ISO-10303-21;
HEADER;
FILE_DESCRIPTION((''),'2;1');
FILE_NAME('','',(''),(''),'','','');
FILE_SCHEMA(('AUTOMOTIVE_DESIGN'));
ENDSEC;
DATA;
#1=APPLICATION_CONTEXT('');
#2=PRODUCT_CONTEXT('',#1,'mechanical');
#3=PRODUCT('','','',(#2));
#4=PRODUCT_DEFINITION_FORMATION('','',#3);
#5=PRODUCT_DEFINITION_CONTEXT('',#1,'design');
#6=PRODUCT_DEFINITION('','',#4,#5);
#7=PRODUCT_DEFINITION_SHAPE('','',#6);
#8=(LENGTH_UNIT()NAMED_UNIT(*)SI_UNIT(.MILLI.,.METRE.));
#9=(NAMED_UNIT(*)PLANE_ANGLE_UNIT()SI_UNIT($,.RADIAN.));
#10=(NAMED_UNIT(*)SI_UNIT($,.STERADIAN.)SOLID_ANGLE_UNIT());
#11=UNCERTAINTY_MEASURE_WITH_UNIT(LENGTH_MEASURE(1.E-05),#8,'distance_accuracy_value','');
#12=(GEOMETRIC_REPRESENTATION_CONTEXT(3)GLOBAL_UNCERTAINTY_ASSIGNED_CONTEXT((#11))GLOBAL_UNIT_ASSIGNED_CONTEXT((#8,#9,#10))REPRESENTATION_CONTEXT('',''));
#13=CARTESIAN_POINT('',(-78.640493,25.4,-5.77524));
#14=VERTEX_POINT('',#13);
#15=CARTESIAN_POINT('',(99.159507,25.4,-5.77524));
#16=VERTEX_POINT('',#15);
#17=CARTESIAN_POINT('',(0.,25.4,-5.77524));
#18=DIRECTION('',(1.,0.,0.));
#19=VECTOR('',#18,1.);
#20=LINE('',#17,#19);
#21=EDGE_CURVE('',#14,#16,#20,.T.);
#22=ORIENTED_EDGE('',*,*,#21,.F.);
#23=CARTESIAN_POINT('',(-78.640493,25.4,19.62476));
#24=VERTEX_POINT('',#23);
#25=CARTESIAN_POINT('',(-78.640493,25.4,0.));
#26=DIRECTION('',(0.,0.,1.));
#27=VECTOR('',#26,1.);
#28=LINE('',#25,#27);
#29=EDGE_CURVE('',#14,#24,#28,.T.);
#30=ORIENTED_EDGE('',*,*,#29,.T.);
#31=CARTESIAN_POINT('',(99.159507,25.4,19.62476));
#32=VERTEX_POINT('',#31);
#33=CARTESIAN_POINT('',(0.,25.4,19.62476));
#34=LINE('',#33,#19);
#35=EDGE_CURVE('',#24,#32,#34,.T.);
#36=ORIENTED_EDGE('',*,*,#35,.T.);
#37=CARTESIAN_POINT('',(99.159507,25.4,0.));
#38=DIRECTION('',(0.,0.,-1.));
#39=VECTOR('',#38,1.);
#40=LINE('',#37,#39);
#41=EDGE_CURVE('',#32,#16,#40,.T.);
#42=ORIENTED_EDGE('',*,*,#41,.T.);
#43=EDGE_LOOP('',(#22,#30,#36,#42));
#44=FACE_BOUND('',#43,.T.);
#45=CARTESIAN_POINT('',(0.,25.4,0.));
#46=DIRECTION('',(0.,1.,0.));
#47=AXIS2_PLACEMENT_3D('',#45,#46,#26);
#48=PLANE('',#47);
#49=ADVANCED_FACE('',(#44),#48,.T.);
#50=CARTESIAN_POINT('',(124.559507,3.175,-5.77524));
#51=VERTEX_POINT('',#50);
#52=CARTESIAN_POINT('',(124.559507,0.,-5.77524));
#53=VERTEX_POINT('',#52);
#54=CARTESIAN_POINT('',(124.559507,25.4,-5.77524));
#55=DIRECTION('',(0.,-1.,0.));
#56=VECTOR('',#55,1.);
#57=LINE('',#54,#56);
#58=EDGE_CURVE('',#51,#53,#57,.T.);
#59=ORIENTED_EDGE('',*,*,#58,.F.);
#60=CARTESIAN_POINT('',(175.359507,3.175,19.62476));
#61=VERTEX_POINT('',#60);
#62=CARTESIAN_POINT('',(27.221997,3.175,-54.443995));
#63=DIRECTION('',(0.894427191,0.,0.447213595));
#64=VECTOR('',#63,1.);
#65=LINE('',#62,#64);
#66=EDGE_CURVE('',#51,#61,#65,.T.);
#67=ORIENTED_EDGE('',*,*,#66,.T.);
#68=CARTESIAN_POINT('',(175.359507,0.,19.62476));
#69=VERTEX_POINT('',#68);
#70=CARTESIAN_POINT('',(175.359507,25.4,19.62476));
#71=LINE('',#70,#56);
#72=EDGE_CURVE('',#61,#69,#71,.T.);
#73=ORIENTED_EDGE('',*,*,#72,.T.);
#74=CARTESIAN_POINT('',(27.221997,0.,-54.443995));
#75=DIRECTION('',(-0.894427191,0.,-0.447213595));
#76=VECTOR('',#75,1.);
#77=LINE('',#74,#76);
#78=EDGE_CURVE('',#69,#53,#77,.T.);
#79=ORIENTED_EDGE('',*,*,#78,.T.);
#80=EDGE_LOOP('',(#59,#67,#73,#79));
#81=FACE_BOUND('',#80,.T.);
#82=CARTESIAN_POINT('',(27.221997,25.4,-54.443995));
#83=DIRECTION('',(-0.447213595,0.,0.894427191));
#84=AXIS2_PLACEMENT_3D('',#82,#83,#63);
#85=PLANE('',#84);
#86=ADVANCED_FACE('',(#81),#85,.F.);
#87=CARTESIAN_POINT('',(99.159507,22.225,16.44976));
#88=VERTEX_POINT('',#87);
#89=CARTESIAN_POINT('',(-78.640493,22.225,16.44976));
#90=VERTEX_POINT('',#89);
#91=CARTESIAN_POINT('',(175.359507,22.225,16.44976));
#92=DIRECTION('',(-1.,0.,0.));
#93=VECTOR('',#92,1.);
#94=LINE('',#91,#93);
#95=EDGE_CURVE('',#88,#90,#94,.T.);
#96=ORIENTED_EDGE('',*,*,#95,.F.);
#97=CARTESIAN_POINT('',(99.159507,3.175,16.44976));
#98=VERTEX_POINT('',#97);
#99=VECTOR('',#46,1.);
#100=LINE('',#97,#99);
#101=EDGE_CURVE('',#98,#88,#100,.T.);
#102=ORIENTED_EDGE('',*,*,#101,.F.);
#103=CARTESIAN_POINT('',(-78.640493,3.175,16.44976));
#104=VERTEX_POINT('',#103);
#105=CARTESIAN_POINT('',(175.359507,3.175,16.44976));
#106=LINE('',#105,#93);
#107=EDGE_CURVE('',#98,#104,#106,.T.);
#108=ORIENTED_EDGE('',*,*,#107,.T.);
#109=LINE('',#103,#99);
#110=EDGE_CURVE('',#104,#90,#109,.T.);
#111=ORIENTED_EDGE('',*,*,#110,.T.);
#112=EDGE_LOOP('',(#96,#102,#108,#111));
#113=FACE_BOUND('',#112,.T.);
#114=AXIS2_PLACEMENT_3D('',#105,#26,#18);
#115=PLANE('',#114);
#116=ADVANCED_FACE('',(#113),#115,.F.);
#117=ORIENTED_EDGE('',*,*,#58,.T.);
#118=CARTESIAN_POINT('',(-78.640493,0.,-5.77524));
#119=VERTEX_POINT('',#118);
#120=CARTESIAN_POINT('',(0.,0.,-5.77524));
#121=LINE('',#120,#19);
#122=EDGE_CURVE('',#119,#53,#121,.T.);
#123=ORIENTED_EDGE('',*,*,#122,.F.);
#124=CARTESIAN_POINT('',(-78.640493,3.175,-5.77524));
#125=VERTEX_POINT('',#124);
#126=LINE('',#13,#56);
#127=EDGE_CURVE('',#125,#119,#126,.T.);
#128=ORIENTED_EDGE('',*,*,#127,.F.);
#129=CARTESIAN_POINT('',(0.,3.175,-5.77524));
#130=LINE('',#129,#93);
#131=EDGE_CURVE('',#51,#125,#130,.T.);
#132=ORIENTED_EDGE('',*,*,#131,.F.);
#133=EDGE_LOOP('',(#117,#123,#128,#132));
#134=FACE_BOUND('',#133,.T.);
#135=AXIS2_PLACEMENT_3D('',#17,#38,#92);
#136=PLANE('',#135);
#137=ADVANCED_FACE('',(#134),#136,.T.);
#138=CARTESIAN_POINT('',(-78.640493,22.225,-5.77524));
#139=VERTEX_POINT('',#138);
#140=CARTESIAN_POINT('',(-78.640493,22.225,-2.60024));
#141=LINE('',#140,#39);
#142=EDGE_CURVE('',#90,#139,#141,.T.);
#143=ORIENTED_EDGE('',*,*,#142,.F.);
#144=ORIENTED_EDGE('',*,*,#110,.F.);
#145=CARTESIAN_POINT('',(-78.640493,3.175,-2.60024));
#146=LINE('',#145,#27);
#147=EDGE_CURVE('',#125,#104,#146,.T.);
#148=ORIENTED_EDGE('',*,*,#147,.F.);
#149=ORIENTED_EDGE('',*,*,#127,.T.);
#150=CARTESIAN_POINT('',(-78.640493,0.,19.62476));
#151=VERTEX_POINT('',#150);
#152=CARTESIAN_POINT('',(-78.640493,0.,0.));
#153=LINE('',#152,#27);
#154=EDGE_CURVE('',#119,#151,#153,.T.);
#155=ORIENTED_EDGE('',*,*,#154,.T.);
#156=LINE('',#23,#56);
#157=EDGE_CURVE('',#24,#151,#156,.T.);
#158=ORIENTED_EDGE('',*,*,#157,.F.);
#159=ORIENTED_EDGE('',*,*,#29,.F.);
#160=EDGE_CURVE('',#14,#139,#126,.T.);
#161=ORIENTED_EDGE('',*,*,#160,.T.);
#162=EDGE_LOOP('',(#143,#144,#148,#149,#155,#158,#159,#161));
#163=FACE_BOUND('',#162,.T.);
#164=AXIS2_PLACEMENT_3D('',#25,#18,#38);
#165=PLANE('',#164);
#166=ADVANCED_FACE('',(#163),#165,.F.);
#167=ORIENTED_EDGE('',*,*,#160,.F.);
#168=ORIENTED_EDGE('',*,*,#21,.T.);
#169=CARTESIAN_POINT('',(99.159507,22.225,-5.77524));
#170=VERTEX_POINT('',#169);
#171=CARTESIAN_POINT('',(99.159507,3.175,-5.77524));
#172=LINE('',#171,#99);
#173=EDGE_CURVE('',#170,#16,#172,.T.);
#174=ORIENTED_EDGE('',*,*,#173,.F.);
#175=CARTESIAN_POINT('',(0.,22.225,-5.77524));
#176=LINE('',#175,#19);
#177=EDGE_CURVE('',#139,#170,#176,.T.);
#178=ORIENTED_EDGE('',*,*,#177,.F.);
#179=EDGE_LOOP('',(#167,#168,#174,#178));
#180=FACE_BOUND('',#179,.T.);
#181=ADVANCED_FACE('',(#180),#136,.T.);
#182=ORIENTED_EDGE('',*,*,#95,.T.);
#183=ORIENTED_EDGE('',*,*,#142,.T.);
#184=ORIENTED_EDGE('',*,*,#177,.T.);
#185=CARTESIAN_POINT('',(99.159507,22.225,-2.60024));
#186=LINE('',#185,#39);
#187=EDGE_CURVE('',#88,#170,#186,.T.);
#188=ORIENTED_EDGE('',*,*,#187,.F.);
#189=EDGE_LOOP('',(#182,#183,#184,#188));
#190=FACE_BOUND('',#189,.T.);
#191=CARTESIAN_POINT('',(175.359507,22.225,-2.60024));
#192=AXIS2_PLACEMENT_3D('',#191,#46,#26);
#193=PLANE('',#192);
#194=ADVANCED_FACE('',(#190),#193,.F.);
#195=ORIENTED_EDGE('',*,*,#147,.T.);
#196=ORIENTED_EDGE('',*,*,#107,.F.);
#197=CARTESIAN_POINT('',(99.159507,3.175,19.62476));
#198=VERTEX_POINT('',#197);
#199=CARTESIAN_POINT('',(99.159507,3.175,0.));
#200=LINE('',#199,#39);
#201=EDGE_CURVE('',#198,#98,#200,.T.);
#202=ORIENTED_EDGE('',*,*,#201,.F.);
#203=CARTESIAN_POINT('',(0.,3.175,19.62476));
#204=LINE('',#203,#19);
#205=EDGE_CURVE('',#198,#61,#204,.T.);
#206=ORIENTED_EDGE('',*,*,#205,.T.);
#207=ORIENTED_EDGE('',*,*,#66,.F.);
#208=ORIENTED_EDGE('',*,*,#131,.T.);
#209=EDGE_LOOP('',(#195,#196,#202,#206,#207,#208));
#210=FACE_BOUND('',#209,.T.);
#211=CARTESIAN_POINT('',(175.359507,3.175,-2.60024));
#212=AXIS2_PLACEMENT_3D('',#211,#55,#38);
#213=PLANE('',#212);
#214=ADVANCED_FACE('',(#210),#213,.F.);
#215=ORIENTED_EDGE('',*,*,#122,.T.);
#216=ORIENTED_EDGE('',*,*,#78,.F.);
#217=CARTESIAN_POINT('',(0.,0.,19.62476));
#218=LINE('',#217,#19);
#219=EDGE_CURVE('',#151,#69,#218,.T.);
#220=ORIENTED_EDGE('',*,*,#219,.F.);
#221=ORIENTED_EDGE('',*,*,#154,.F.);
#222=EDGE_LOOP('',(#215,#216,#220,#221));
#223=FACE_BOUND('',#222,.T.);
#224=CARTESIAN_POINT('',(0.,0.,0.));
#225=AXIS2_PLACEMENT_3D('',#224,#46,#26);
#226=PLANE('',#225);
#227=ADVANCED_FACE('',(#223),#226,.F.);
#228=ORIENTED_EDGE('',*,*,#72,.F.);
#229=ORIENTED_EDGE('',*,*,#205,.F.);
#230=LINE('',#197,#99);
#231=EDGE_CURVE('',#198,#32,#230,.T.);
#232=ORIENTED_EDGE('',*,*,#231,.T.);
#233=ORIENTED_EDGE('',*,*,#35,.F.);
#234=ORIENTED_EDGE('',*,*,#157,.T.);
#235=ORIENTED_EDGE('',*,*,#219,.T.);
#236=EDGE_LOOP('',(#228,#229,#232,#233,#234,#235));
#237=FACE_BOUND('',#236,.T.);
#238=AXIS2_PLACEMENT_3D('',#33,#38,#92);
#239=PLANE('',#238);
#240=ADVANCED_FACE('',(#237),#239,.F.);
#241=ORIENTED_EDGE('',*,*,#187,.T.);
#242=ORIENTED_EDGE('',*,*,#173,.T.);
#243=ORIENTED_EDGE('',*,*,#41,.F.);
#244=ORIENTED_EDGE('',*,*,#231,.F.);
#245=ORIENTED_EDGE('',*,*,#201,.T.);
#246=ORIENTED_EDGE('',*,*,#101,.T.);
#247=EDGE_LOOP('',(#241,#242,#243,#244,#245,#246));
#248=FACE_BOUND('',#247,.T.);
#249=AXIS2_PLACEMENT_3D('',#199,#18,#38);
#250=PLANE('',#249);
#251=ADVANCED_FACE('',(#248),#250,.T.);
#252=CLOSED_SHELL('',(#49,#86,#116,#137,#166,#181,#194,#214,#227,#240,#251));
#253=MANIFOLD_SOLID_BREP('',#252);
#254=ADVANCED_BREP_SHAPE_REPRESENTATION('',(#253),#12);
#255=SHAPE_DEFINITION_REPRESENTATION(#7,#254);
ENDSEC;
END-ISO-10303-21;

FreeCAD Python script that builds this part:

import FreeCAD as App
import Part
import Sketcher
Q = App.Units.Quantity


def add_polygon(sketch, points):
    """Adds a closed chain of lines whose ends are joined by coincident constraints."""
    first, n = sketch.GeometryCount, len(points)
    for a, b in zip(points, points[1:] + points[:1]):
        sketch.addGeometry(Part.LineSegment(App.Vector(*a, 0), App.Vector(*b, 0)), False)
    for i in range(n):
        sketch.addConstraint(Sketcher.Constraint("Coincident", first + i, 2, first + (i + 1) % n, 1))

doc = App.newDocument("Part")
params = doc.addObject("Spreadsheet::Sheet", "Params")
for row, (alias, value) in enumerate([
    ("sketch1_width", "10 in"),
    ("sketch1_width2", "8 in"),
    ("sketch1_height", "1 in"),
    ("pad1_length", "1 in"),
    ("sketch2_width", "0.75 in"),
    ("sketch3_width", "3 in"),
    ("sketch3_width2", "1 in"),
    ("pocket2_length", "0.875 in"),
    ("sketch4_width", "7 in"),
    ("sketch4_height", "0.75 in"),
    ("pocket3_length", "0.875 in"),
], start=1):
    params.set(f"A{row}", alias)
    params.set(f"B{row}", "=" + value)
    params.setAlias(f"B{row}", alias)

body = doc.addObject("PartDesign::Body", "Body")

# Sketch on XZ plane
sketch1 = body.newObject("Sketcher::SketchObject", "Sketch")
sketch1.AttachmentSupport = (doc.getObject("XZ_Plane"), [""])
sketch1.MapMode = "FlatFace"
add_polygon(sketch1, [(-78.640493, 19.62476), (175.359507, 19.62476), (124.559507, -5.77524), (-78.640493, -5.77524)])  # lines 0-3
sketch1.addConstraint(Sketcher.Constraint("Horizontal", 0))
sketch1.addConstraint(Sketcher.Constraint("Horizontal", 2))
sketch1.addConstraint(Sketcher.Constraint("Vertical", 3))
sketch1.addConstraint(Sketcher.Constraint("DistanceX", 0, 1, 0, 2, Q("10 in")))
sketch1.addConstraint(Sketcher.Constraint("DistanceX", 2, 2, 2, 1, Q("8 in")))
sketch1.addConstraint(Sketcher.Constraint("DistanceY", 3, 1, 3, 2, Q("1 in")))
sketch1.addConstraint(Sketcher.Constraint("DistanceY", -1, 1, 0, 2, 19.62476))
sketch1.addConstraint(Sketcher.Constraint("DistanceX", -1, 1, 0, 2, 175.359507))
sketch1.setExpression("Constraints[7]", "Params.sketch1_width")
sketch1.setExpression("Constraints[8]", "Params.sketch1_width2")
sketch1.setExpression("Constraints[9]", "Params.sketch1_height")
pad1 = body.newObject("PartDesign::Pad", "Pad")
pad1.Profile = sketch1
pad1.setExpression("Length", "Params.pad1_length")
pad1.Reversed = True

# Sketch on YZ plane
sketch2 = body.newObject("Sketcher::SketchObject", "Sketch001")
sketch2.AttachmentSupport = (doc.getObject("YZ_Plane"), [""])
sketch2.MapMode = "FlatFace"
sketch2.AttachmentOffset = App.Placement(App.Vector(0, 0, -78.640493), App.Rotation())
add_polygon(sketch2, [(22.225, -2.60024), (3.175, -2.60024), (3.175, 16.44976), (22.225, 16.44976)])  # lines 0-3
sketch2.addConstraint(Sketcher.Constraint("Horizontal", 0))
sketch2.addConstraint(Sketcher.Constraint("Vertical", 1))
sketch2.addConstraint(Sketcher.Constraint("Horizontal", 2))
sketch2.addConstraint(Sketcher.Constraint("Vertical", 3))
sketch2.addConstraint(Sketcher.Constraint("Equal", 2, 1))
sketch2.addConstraint(Sketcher.Constraint("DistanceX", 0, 2, 0, 1, Q("0.75 in")))
sketch2.addConstraint(Sketcher.Constraint("DistanceX", -1, 1, 0, 2, Q("0.125 in")))
sketch2.addConstraint(Sketcher.Constraint("DistanceY", 0, 2, -1, 1, 2.60024))
sketch2.setExpression("Constraints[9]", "Params.sketch2_width")
pocket1 = body.newObject("PartDesign::Pocket", "Pocket")
pocket1.Profile = sketch2
pocket1.Type = "ThroughAll"
pocket1.Reversed = True

# Sketch on XZ plane
sketch3 = body.newObject("Sketcher::SketchObject", "Sketch002")
sketch3.AttachmentSupport = (doc.getObject("XZ_Plane"), [""])
sketch3.MapMode = "FlatFace"
sketch3.AttachmentOffset = App.Placement(App.Vector(0, 0, -1 * 25.4), App.Rotation())
add_polygon(sketch3, [(99.159507, -5.77524), (99.159507, 19.62476), (175.359507, 19.62476), (124.559507, -5.77524)])  # lines 0-3
sketch3.addConstraint(Sketcher.Constraint("Vertical", 0))
sketch3.addConstraint(Sketcher.Constraint("Horizontal", 1))
sketch3.addConstraint(Sketcher.Constraint("Horizontal", 3))
sketch3.addConstraint(Sketcher.Constraint("Equal", 3, 0))
sketch3.addConstraint(Sketcher.Constraint("DistanceX", 1, 1, 1, 2, Q("3 in")))
sketch3.addConstraint(Sketcher.Constraint("DistanceX", 3, 2, 3, 1, Q("1 in")))
sketch3.addConstraint(Sketcher.Constraint("DistanceY", -1, 1, 0, 2, 19.62476))
sketch3.addConstraint(Sketcher.Constraint("DistanceX", -1, 1, 0, 2, 99.159507))
sketch3.setExpression("Constraints[8]", "Params.sketch3_width")
sketch3.setExpression("Constraints[9]", "Params.sketch3_width2")
pocket2 = body.newObject("PartDesign::Pocket", "Pocket001")
pocket2.Profile = sketch3
pocket2.setExpression("Length", "Params.pocket2_length")
pocket2.Reversed = True

# Sketch on XY plane
sketch4 = body.newObject("Sketcher::SketchObject", "Sketch003")
sketch4.AttachmentSupport = (doc.getObject("XY_Plane"), [""])
sketch4.MapMode = "FlatFace"
sketch4.AttachmentOffset = App.Placement(App.Vector(0, 0, -5.77524), App.Rotation())
add_polygon(sketch4, [(99.159507, 22.225), (99.159507, 3.175), (-78.640493, 3.175), (-78.640493, 22.225)])  # lines 0-3
sketch4.addConstraint(Sketcher.Constraint("Vertical", 0))
sketch4.addConstraint(Sketcher.Constraint("Horizontal", 1))
sketch4.addConstraint(Sketcher.Constraint("Vertical", 2))
sketch4.addConstraint(Sketcher.Constraint("Horizontal", 3))
sketch4.addConstraint(Sketcher.Constraint("DistanceX", 1, 2, 1, 1, Q("7 in")))
sketch4.addConstraint(Sketcher.Constraint("DistanceY", 0, 2, 0, 1, Q("0.75 in")))
sketch4.addConstraint(Sketcher.Constraint("DistanceY", -1, 1, 0, 2, Q("0.125 in")))
sketch4.addConstraint(Sketcher.Constraint("DistanceX", -1, 1, 0, 2, 99.159507))
sketch4.setExpression("Constraints[8]", "Params.sketch4_width")
sketch4.setExpression("Constraints[9]", "Params.sketch4_height")
pocket3 = body.newObject("PartDesign::Pocket", "Pocket002")
pocket3.Profile = sketch4
pocket3.setExpression("Length", "Params.pocket3_length")
pocket3.Reversed = True

doc.recompute()
